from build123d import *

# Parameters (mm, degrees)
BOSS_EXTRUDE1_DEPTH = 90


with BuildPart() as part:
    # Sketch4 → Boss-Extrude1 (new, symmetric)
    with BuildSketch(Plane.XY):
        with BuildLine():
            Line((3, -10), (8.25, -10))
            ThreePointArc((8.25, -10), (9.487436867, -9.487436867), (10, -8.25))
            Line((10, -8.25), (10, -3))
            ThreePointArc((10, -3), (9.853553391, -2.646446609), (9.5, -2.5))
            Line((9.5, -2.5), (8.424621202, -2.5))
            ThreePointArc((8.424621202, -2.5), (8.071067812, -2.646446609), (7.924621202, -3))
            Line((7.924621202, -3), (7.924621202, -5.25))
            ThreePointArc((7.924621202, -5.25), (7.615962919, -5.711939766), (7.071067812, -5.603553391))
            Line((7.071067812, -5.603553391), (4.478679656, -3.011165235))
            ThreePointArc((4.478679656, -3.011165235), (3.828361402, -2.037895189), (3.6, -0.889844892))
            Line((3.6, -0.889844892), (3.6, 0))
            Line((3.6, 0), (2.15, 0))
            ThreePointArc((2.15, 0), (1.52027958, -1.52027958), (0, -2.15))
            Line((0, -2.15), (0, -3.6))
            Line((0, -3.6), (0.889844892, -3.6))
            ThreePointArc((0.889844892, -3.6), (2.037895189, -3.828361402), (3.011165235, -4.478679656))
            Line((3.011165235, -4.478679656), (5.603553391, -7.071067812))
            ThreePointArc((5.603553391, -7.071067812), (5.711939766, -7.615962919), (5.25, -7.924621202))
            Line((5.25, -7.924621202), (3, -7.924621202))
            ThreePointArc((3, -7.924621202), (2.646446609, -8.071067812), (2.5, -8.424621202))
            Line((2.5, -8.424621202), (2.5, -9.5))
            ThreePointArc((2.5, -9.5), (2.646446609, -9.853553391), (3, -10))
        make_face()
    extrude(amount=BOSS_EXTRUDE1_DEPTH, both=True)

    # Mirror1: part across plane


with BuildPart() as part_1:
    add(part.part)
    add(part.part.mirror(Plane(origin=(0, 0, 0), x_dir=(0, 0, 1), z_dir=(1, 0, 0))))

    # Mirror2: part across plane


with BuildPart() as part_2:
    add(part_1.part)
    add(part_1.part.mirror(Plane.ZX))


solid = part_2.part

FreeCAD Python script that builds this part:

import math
import FreeCAD as App
import Part
import Sketcher
from FreeCAD import Vector

doc = App.newDocument("Part")
body = doc.addObject("PartDesign::Body", "Body")

sketch1 = body.newObject("Sketcher::SketchObject", "Sketch")
sketch1.AttachmentSupport = (doc.getObject("XY_Plane"), [""])
sketch1.MapMode = "FlatFace"
sketch1.addGeometry([
    Part.LineSegment(Vector(3, -10, 0), Vector(8.25, -10, 0)),
    Part.ArcOfCircle(Part.Circle(Vector(8.25, -8.25, 0), Vector(0, 0, 1), 1.75), math.radians(-90), math.radians(0)),
    Part.LineSegment(Vector(10, -8.25, 0), Vector(10, -3, 0)),
    Part.ArcOfCircle(Part.Circle(Vector(9.5, -3, 0), Vector(0, 0, 1), 0.5), math.radians(0), math.radians(90)),
    Part.LineSegment(Vector(9.5, -2.5, 0), Vector(8.42, -2.5, 0)),
    Part.ArcOfCircle(Part.Circle(Vector(8.42, -3, 0), Vector(0, 0, 1), 0.5), math.radians(90), math.radians(180)),
    Part.LineSegment(Vector(7.92, -3, 0), Vector(7.92, -5.25, 0)),
    Part.ArcOfCircle(Part.Circle(Vector(7.42, -5.25, 0), Vector(0, 0, 1), 0.5), math.radians(-135), math.radians(0)),
    Part.LineSegment(Vector(7.07, -5.6, 0), Vector(4.48, -3.01, 0)),
    Part.ArcOfCircle(Part.Circle(Vector(6.6, -0.89, 0), Vector(0, 0, 1), 3), math.radians(180), math.radians(225)),
    Part.LineSegment(Vector(3.6, -0.89, 0), Vector(3.6, 0, 0)),
    Part.LineSegment(Vector(3.6, 0, 0), Vector(2.15, 0, 0)),
    Part.ArcOfCircle(Part.Circle(Vector(0, 0, 0), Vector(0, 0, 1), 2.15), math.radians(-90), math.radians(0)),
    Part.LineSegment(Vector(0, -2.15, 0), Vector(0, -3.6, 0)),
    Part.LineSegment(Vector(0, -3.6, 0), Vector(0.89, -3.6, 0)),
    Part.ArcOfCircle(Part.Circle(Vector(0.89, -6.6, 0), Vector(0, 0, 1), 3), math.radians(45), math.radians(90)),
    Part.LineSegment(Vector(3.01, -4.48, 0), Vector(5.6, -7.07, 0)),
    Part.ArcOfCircle(Part.Circle(Vector(5.25, -7.42, 0), Vector(0, 0, 1), 0.5), math.radians(-90), math.radians(45)),
    Part.LineSegment(Vector(5.25, -7.92, 0), Vector(3, -7.92, 0)),
    Part.ArcOfCircle(Part.Circle(Vector(3, -8.42, 0), Vector(0, 0, 1), 0.5), math.radians(90), math.radians(180)),
    Part.LineSegment(Vector(2.5, -8.42, 0), Vector(2.5, -9.5, 0)),
    Part.ArcOfCircle(Part.Circle(Vector(3, -9.5, 0), Vector(0, 0, 1), 0.5), math.radians(180), math.radians(270)),
], False)
sketch1.addConstraint([
    Sketcher.Constraint("Tangent", 0, 2, 1, 1),
    Sketcher.Constraint("Tangent", 1, 2, 2, 1),
    Sketcher.Constraint("Tangent", 2, 2, 3, 1),
    Sketcher.Constraint("Tangent", 3, 2, 4, 1),
    Sketcher.Constraint("Tangent", 4, 2, 5, 1),
    Sketcher.Constraint("Tangent", 5, 2, 6, 1),
    Sketcher.Constraint("Tangent", 6, 2, 7, 2),
    Sketcher.Constraint("Tangent", 7, 1, 8, 1),
    Sketcher.Constraint("Tangent", 8, 2, 9, 2),
    Sketcher.Constraint("Tangent", 9, 1, 10, 1),
    Sketcher.Constraint("Coincident", 10, 2, 11, 1),
    Sketcher.Constraint("Coincident", 11, 2, 12, 2),
    Sketcher.Constraint("Coincident", 12, 1, 13, 1),
    Sketcher.Constraint("Coincident", 13, 2, 14, 1),
    Sketcher.Constraint("Tangent", 14, 2, 15, 2),
    Sketcher.Constraint("Tangent", 15, 1, 16, 1),
    Sketcher.Constraint("Tangent", 16, 2, 17, 2),
    Sketcher.Constraint("Tangent", 17, 1, 18, 1),
    Sketcher.Constraint("Tangent", 18, 2, 19, 1),
    Sketcher.Constraint("Tangent", 19, 2, 20, 1),
    Sketcher.Constraint("Tangent", 20, 2, 21, 1),
    Sketcher.Constraint("Tangent", 21, 2, 0, 1),
    Sketcher.Constraint("Horizontal", 0),
    Sketcher.Constraint("Vertical", 2),
    Sketcher.Constraint("Horizontal", 4),
    Sketcher.Constraint("Vertical", 6),
    Sketcher.Constraint("Vertical", 10),
    Sketcher.Constraint("Horizontal", 11),
    Sketcher.Constraint("Vertical", 13),
    Sketcher.Constraint("Horizontal", 14),
    Sketcher.Constraint("Horizontal", 18),
    Sketcher.Constraint("Vertical", 20),
    Sketcher.Constraint("Coincident", 12, 3, -1, 1),
    Sketcher.Constraint("Equal", 3, 5),
    Sketcher.Constraint("Equal", 5, 7),
    Sketcher.Constraint("Equal", 9, 15),
    Sketcher.Constraint("Equal", 7, 17),
    Sketcher.Constraint("Equal", 17, 19),
    Sketcher.Constraint("Equal", 19, 21),
    Sketcher.Constraint("PointOnObject", 10, 2, -1),
    Sketcher.Constraint("PointOnObject", 12, 1, -2),
    Sketcher.Constraint("Parallel", 8, 16),
    Sketcher.Constraint("Equal", 0, 2),
    Sketcher.Constraint("Equal", 18, 6),
    Sketcher.Constraint("Equal", 14, 10),
    Sketcher.Constraint("Equal", 11, 13),
    Sketcher.Constraint("Equal", 4, 20),
    Sketcher.Constraint("Equal", 8, 16),
    Sketcher.Constraint("Radius", 9, 3.0),
    Sketcher.Constraint("Radius", 3, 0.5),
    Sketcher.Constraint("Radius", 1, 1.75),
    Sketcher.Constraint("Radius", 12, 2.15),
    Sketcher.Constraint("DistanceY", 3, 3, -1, 1, 3.0),
    Sketcher.Constraint("DistanceY", 0, 2, -1, 1, 10.0),
    Sketcher.Constraint("DistanceY", 1, 3, 7, 3, 3.0),
    Sketcher.Constraint("DistanceX", 11, 2, 11, 1, 1.45),
    Sketcher.Constraint("DistanceX", 4, 2, 4, 1, 1.075379),
])
pad1 = body.newObject("PartDesign::Pad", "Pad")
pad1.Profile = sketch1
pad1.Length = 180
pad1.Midplane = True
body2 = doc.addObject("PartDesign::Body", "Body001")
doc.recompute()

body2.BaseFeature = body
doc.recompute()

mirroring = doc.addObject("Part::Mirroring", "Mirroring")
mirroring.Source = body
mirroring.Base = Vector(0, 0, 0)
mirroring.Normal = Vector(1, 0, 0)
body3 = doc.addObject("PartDesign::Body", "Body002")
body3.BaseFeature = mirroring
boolean = body2.newObject("PartDesign::Boolean", "Boolean")
boolean.Type = "Fuse"
boolean.addObjects([body3])
doc.recompute()
body4 = doc.addObject("PartDesign::Body", "Body003")
doc.recompute()

body4.BaseFeature = body2
doc.recompute()

mirroring2 = doc.addObject("Part::Mirroring", "Mirroring001")
mirroring2.Source = body2
mirroring2.Base = Vector(0, 0, 0)
mirroring2.Normal = Vector(0, 1, 0)
body5 = doc.addObject("PartDesign::Body", "Body004")
body5.BaseFeature = mirroring2
boolean2 = body4.newObject("PartDesign::Boolean", "Boolean001")
boolean2.Type = "Fuse"
boolean2.addObjects([body5])
doc.recompute()
mirroring.Visibility = False
mirroring2.Visibility = False

doc.recompute()
